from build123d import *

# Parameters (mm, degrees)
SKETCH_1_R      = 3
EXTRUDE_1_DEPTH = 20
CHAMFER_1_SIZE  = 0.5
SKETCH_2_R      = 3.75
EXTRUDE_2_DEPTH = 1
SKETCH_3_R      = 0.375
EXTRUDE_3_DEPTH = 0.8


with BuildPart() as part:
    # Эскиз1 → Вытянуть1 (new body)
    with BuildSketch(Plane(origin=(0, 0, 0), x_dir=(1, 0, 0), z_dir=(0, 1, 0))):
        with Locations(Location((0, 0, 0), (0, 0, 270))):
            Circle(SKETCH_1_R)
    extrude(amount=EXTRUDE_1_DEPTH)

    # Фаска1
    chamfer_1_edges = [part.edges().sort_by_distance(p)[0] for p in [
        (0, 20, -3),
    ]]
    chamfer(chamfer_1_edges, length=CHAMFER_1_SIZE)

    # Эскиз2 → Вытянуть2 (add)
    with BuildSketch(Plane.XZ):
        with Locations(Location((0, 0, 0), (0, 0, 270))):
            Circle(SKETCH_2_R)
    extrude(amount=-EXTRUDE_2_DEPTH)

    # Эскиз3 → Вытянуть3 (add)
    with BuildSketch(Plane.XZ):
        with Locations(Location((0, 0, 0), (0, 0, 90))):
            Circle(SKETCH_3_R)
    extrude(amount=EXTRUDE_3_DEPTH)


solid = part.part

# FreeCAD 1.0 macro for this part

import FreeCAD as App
import Part
import Sketcher
from FreeCAD import Vector
Q = App.Units.Quantity


def edges_at(feature, points):
    """Names of the edges that pass closest to the given points."""
    edges = feature.Shape.Edges
    near = lambda p: min(range(len(edges)), key=lambda i: edges[i].distToShape(Part.Vertex(*p))[0])
    return sorted({f"Edge{near(p) + 1}" for p in points})

doc = App.newDocument("Part")
params = doc.addObject("Spreadsheet::Sheet", "Params")
for row, (alias, value) in enumerate([
    ("sketch1_diameter", "6 mm"),
    ("pad1_length", "20 mm"),
    ("chamfer_size", "0.5 mm"),
    ("sketch2_diameter", "7.5 mm"),
    ("pad2_length", "1 mm"),
    ("sketch3_diameter", "0.75 mm"),
    ("pad3_length", "0.8 mm"),
], start=1):
    params.set(f"A{row}", alias)
    params.set(f"B{row}", "=" + value)
    params.setAlias(f"B{row}", alias)

body = doc.addObject("PartDesign::Body", "Body")

sketch1 = doc.addObject("Sketcher::SketchObject", "Sketch")
body.addObject(sketch1)
sketch1.AttachmentSupport = (doc.XZ_Plane, [""])
sketch1.MapMode = "FlatFace"
sketch1.addGeometry(Part.Circle(Vector(0, 0, 0), Vector(0, 0, 1), 3), False)
sketch1.addConstraint([
    Sketcher.Constraint("Coincident", 0, 3, -1, 1),
    Sketcher.Constraint("Diameter", 0, Q("6 mm")),
])
sketch1.setExpression("Constraints[1]", "Params.sketch1_diameter")
pad1 = doc.addObject("PartDesign::Pad", "Pad")
body.addObject(pad1)
pad1.Profile = sketch1
pad1.setExpression("Length", "Params.pad1_length")
pad1.Reversed = True
doc.recompute()

chamfer = doc.addObject("PartDesign::Chamfer", "Chamfer")
body.addObject(chamfer)
chamfer.Base = (pad1, edges_at(pad1, [(0, 20, -3)]))
chamfer.setExpression("Size", "Params.chamfer_size")

sketch2 = doc.addObject("Sketcher::SketchObject", "Sketch001")
body.addObject(sketch2)
sketch2.AttachmentSupport = (doc.XZ_Plane, [""])
sketch2.MapMode = "FlatFace"
sketch2.addGeometry(Part.Circle(Vector(0, 0, 0), Vector(0, 0, 1), 3.8), False)
sketch2.addConstraint([
    Sketcher.Constraint("Coincident", 0, 3, -1, 1),
    Sketcher.Constraint("Diameter", 0, Q("7.5 mm")),
])
sketch2.setExpression("Constraints[1]", "Params.sketch2_diameter")
pad2 = doc.addObject("PartDesign::Pad", "Pad001")
body.addObject(pad2)
pad2.Profile = sketch2
pad2.setExpression("Length", "Params.pad2_length")
pad2.Reversed = True

sketch3 = doc.addObject("Sketcher::SketchObject", "Sketch002")
body.addObject(sketch3)
sketch3.AttachmentSupport = (doc.XZ_Plane, [""])
sketch3.MapMode = "FlatFace"
sketch3.addGeometry(Part.Circle(Vector(0, 0, 0), Vector(0, 0, 1), 0.38), False)
sketch3.addConstraint([
    Sketcher.Constraint("Coincident", 0, 3, -1, 1),
    Sketcher.Constraint("Diameter", 0, Q("0.75 mm")),
])
sketch3.setExpression("Constraints[1]", "Params.sketch3_diameter")
pad3 = doc.addObject("PartDesign::Pad", "Pad002")
body.addObject(pad3)
pad3.Profile = sketch3
pad3.setExpression("Length", "Params.pad3_length")

doc.recompute()
